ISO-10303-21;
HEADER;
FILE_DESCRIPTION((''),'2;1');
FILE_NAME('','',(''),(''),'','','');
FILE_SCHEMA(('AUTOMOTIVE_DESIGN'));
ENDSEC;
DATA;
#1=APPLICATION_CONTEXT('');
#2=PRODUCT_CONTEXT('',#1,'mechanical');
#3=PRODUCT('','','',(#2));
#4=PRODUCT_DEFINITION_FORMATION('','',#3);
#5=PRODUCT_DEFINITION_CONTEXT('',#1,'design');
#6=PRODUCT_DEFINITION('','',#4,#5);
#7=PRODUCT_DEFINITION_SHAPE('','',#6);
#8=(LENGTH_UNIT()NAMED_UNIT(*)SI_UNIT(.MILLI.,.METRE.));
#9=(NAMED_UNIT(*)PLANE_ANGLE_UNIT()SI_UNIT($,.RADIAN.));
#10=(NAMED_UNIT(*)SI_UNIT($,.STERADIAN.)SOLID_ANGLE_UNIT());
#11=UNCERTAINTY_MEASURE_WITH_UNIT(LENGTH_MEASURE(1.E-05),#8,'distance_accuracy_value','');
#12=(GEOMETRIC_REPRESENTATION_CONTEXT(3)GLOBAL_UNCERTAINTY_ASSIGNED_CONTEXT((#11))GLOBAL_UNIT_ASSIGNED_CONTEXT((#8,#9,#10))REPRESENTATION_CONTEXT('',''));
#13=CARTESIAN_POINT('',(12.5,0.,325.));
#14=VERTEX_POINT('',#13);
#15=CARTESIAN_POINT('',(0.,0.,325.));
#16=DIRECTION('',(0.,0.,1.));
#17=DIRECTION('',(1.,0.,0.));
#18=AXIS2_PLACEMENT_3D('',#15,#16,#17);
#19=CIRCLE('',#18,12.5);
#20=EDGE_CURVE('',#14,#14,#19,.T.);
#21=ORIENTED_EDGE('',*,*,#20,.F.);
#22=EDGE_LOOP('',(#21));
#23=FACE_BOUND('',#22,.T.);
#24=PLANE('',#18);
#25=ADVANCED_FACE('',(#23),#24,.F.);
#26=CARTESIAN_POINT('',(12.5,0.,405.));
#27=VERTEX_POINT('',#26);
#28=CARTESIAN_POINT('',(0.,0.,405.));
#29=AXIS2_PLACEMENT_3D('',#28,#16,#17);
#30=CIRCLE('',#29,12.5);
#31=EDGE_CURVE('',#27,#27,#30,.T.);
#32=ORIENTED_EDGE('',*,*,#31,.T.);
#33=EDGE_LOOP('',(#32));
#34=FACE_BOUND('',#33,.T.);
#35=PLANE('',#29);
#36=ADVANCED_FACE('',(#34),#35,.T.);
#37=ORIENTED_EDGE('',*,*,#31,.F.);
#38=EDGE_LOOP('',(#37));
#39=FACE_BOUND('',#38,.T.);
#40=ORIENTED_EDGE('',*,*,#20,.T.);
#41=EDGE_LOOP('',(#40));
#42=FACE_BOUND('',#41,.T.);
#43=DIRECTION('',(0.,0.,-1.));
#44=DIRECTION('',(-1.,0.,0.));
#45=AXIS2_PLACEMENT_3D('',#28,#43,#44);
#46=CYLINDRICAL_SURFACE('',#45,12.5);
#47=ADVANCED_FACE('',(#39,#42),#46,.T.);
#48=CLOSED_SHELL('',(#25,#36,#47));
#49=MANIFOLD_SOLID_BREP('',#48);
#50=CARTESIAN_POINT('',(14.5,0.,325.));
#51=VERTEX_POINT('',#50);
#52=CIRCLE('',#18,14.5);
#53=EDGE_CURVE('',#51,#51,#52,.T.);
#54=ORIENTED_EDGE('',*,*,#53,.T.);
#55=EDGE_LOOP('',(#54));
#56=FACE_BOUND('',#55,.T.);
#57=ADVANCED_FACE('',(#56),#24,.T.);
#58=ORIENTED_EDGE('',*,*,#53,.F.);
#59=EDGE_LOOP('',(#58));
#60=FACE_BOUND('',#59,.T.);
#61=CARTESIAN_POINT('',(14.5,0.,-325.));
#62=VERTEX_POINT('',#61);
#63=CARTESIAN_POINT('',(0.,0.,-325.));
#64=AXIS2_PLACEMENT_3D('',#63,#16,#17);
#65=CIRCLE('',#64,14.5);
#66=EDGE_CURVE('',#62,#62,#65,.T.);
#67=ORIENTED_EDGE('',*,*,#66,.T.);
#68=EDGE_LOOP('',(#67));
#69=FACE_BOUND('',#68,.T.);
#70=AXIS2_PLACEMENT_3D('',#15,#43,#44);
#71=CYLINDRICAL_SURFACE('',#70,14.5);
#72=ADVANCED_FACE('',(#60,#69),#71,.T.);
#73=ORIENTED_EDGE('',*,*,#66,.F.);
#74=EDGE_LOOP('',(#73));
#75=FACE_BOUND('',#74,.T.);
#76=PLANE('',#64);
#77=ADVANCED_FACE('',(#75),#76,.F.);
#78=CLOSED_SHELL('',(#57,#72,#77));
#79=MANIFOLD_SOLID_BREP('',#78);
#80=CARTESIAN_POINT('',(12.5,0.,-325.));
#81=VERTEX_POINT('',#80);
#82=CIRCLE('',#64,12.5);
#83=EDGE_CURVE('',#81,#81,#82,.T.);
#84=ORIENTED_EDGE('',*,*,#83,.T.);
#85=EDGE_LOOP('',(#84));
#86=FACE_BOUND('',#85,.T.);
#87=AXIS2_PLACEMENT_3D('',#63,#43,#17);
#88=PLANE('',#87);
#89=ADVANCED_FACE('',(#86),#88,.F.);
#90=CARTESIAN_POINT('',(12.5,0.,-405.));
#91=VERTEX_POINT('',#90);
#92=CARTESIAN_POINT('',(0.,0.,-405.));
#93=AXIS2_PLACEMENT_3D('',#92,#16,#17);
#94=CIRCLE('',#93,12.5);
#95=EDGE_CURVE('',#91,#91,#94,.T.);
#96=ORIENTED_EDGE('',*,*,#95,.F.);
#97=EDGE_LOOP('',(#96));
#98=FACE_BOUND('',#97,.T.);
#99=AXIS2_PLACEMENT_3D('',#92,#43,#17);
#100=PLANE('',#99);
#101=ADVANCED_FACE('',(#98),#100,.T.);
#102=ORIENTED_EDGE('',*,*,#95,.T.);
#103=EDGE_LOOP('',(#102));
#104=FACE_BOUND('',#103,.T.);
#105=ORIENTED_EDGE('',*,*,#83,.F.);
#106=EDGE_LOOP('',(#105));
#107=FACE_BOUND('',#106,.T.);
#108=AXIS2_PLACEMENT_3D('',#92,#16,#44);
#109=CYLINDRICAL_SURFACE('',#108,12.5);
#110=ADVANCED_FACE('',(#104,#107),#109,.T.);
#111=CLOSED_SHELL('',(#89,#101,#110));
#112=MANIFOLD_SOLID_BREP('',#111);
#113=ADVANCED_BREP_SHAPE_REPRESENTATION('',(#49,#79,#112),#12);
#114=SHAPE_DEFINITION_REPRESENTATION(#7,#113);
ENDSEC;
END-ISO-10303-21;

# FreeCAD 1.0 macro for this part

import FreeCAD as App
import Part
import Sketcher
from FreeCAD import Vector
Q = App.Units.Quantity

doc = App.newDocument("Part")
body = doc.addObject("PartDesign::Body", "Body")

# Sketch on XY plane
sketch1 = body.newObject("Sketcher::SketchObject", "Sketch")
sketch1.AttachmentSupport = (doc.getObject("XY_Plane"), [""])
sketch1.MapMode = "FlatFace"
sketch1.addGeometry(Part.Circle(Vector(0, 0, 0), Vector(0, 0, 1), 14), False)
sketch1.addConstraint([
    Sketcher.Constraint("Coincident", 0, 3, -1, 1),
    Sketcher.Constraint("Diameter", 0, Q("29 mm")),
])
pad1 = body.newObject("PartDesign::Pad", "Pad")
pad1.Profile = sketch1
pad1.Length = 650
pad1.Midplane = True
body2 = doc.addObject("PartDesign::Body", "Body001")

# Sketch on XY plane
sketch2 = body2.newObject("Sketcher::SketchObject", "Sketch001")
sketch2.AttachmentSupport = (doc.getObject("XY_Plane001"), [""])
sketch2.MapMode = "FlatFace"
sketch2.AttachmentOffset = App.Placement(Vector(0, 0, 325), App.Rotation())
sketch2.addGeometry(Part.Circle(Vector(0, 0, 0), Vector(0, 0, 1), 12), False)
sketch2.addConstraint([
    Sketcher.Constraint("Coincident", 0, 3, -1, 1),
    Sketcher.Constraint("Diameter", 0, Q("25 mm")),
])
pad2 = body2.newObject("PartDesign::Pad", "Pad001")
pad2.Profile = sketch2
pad2.Length = 80
body3 = doc.addObject("PartDesign::Body", "Body002")
doc.recompute()

mirroring = doc.addObject("Part::Mirroring", "Mirroring")
mirroring.Source = body2
mirroring.Base = Vector(0, 0, 0)
mirroring.Normal = Vector(0, 0, 1)
body3.BaseFeature = mirroring
doc.recompute()
mirroring.Visibility = False

doc.recompute()
